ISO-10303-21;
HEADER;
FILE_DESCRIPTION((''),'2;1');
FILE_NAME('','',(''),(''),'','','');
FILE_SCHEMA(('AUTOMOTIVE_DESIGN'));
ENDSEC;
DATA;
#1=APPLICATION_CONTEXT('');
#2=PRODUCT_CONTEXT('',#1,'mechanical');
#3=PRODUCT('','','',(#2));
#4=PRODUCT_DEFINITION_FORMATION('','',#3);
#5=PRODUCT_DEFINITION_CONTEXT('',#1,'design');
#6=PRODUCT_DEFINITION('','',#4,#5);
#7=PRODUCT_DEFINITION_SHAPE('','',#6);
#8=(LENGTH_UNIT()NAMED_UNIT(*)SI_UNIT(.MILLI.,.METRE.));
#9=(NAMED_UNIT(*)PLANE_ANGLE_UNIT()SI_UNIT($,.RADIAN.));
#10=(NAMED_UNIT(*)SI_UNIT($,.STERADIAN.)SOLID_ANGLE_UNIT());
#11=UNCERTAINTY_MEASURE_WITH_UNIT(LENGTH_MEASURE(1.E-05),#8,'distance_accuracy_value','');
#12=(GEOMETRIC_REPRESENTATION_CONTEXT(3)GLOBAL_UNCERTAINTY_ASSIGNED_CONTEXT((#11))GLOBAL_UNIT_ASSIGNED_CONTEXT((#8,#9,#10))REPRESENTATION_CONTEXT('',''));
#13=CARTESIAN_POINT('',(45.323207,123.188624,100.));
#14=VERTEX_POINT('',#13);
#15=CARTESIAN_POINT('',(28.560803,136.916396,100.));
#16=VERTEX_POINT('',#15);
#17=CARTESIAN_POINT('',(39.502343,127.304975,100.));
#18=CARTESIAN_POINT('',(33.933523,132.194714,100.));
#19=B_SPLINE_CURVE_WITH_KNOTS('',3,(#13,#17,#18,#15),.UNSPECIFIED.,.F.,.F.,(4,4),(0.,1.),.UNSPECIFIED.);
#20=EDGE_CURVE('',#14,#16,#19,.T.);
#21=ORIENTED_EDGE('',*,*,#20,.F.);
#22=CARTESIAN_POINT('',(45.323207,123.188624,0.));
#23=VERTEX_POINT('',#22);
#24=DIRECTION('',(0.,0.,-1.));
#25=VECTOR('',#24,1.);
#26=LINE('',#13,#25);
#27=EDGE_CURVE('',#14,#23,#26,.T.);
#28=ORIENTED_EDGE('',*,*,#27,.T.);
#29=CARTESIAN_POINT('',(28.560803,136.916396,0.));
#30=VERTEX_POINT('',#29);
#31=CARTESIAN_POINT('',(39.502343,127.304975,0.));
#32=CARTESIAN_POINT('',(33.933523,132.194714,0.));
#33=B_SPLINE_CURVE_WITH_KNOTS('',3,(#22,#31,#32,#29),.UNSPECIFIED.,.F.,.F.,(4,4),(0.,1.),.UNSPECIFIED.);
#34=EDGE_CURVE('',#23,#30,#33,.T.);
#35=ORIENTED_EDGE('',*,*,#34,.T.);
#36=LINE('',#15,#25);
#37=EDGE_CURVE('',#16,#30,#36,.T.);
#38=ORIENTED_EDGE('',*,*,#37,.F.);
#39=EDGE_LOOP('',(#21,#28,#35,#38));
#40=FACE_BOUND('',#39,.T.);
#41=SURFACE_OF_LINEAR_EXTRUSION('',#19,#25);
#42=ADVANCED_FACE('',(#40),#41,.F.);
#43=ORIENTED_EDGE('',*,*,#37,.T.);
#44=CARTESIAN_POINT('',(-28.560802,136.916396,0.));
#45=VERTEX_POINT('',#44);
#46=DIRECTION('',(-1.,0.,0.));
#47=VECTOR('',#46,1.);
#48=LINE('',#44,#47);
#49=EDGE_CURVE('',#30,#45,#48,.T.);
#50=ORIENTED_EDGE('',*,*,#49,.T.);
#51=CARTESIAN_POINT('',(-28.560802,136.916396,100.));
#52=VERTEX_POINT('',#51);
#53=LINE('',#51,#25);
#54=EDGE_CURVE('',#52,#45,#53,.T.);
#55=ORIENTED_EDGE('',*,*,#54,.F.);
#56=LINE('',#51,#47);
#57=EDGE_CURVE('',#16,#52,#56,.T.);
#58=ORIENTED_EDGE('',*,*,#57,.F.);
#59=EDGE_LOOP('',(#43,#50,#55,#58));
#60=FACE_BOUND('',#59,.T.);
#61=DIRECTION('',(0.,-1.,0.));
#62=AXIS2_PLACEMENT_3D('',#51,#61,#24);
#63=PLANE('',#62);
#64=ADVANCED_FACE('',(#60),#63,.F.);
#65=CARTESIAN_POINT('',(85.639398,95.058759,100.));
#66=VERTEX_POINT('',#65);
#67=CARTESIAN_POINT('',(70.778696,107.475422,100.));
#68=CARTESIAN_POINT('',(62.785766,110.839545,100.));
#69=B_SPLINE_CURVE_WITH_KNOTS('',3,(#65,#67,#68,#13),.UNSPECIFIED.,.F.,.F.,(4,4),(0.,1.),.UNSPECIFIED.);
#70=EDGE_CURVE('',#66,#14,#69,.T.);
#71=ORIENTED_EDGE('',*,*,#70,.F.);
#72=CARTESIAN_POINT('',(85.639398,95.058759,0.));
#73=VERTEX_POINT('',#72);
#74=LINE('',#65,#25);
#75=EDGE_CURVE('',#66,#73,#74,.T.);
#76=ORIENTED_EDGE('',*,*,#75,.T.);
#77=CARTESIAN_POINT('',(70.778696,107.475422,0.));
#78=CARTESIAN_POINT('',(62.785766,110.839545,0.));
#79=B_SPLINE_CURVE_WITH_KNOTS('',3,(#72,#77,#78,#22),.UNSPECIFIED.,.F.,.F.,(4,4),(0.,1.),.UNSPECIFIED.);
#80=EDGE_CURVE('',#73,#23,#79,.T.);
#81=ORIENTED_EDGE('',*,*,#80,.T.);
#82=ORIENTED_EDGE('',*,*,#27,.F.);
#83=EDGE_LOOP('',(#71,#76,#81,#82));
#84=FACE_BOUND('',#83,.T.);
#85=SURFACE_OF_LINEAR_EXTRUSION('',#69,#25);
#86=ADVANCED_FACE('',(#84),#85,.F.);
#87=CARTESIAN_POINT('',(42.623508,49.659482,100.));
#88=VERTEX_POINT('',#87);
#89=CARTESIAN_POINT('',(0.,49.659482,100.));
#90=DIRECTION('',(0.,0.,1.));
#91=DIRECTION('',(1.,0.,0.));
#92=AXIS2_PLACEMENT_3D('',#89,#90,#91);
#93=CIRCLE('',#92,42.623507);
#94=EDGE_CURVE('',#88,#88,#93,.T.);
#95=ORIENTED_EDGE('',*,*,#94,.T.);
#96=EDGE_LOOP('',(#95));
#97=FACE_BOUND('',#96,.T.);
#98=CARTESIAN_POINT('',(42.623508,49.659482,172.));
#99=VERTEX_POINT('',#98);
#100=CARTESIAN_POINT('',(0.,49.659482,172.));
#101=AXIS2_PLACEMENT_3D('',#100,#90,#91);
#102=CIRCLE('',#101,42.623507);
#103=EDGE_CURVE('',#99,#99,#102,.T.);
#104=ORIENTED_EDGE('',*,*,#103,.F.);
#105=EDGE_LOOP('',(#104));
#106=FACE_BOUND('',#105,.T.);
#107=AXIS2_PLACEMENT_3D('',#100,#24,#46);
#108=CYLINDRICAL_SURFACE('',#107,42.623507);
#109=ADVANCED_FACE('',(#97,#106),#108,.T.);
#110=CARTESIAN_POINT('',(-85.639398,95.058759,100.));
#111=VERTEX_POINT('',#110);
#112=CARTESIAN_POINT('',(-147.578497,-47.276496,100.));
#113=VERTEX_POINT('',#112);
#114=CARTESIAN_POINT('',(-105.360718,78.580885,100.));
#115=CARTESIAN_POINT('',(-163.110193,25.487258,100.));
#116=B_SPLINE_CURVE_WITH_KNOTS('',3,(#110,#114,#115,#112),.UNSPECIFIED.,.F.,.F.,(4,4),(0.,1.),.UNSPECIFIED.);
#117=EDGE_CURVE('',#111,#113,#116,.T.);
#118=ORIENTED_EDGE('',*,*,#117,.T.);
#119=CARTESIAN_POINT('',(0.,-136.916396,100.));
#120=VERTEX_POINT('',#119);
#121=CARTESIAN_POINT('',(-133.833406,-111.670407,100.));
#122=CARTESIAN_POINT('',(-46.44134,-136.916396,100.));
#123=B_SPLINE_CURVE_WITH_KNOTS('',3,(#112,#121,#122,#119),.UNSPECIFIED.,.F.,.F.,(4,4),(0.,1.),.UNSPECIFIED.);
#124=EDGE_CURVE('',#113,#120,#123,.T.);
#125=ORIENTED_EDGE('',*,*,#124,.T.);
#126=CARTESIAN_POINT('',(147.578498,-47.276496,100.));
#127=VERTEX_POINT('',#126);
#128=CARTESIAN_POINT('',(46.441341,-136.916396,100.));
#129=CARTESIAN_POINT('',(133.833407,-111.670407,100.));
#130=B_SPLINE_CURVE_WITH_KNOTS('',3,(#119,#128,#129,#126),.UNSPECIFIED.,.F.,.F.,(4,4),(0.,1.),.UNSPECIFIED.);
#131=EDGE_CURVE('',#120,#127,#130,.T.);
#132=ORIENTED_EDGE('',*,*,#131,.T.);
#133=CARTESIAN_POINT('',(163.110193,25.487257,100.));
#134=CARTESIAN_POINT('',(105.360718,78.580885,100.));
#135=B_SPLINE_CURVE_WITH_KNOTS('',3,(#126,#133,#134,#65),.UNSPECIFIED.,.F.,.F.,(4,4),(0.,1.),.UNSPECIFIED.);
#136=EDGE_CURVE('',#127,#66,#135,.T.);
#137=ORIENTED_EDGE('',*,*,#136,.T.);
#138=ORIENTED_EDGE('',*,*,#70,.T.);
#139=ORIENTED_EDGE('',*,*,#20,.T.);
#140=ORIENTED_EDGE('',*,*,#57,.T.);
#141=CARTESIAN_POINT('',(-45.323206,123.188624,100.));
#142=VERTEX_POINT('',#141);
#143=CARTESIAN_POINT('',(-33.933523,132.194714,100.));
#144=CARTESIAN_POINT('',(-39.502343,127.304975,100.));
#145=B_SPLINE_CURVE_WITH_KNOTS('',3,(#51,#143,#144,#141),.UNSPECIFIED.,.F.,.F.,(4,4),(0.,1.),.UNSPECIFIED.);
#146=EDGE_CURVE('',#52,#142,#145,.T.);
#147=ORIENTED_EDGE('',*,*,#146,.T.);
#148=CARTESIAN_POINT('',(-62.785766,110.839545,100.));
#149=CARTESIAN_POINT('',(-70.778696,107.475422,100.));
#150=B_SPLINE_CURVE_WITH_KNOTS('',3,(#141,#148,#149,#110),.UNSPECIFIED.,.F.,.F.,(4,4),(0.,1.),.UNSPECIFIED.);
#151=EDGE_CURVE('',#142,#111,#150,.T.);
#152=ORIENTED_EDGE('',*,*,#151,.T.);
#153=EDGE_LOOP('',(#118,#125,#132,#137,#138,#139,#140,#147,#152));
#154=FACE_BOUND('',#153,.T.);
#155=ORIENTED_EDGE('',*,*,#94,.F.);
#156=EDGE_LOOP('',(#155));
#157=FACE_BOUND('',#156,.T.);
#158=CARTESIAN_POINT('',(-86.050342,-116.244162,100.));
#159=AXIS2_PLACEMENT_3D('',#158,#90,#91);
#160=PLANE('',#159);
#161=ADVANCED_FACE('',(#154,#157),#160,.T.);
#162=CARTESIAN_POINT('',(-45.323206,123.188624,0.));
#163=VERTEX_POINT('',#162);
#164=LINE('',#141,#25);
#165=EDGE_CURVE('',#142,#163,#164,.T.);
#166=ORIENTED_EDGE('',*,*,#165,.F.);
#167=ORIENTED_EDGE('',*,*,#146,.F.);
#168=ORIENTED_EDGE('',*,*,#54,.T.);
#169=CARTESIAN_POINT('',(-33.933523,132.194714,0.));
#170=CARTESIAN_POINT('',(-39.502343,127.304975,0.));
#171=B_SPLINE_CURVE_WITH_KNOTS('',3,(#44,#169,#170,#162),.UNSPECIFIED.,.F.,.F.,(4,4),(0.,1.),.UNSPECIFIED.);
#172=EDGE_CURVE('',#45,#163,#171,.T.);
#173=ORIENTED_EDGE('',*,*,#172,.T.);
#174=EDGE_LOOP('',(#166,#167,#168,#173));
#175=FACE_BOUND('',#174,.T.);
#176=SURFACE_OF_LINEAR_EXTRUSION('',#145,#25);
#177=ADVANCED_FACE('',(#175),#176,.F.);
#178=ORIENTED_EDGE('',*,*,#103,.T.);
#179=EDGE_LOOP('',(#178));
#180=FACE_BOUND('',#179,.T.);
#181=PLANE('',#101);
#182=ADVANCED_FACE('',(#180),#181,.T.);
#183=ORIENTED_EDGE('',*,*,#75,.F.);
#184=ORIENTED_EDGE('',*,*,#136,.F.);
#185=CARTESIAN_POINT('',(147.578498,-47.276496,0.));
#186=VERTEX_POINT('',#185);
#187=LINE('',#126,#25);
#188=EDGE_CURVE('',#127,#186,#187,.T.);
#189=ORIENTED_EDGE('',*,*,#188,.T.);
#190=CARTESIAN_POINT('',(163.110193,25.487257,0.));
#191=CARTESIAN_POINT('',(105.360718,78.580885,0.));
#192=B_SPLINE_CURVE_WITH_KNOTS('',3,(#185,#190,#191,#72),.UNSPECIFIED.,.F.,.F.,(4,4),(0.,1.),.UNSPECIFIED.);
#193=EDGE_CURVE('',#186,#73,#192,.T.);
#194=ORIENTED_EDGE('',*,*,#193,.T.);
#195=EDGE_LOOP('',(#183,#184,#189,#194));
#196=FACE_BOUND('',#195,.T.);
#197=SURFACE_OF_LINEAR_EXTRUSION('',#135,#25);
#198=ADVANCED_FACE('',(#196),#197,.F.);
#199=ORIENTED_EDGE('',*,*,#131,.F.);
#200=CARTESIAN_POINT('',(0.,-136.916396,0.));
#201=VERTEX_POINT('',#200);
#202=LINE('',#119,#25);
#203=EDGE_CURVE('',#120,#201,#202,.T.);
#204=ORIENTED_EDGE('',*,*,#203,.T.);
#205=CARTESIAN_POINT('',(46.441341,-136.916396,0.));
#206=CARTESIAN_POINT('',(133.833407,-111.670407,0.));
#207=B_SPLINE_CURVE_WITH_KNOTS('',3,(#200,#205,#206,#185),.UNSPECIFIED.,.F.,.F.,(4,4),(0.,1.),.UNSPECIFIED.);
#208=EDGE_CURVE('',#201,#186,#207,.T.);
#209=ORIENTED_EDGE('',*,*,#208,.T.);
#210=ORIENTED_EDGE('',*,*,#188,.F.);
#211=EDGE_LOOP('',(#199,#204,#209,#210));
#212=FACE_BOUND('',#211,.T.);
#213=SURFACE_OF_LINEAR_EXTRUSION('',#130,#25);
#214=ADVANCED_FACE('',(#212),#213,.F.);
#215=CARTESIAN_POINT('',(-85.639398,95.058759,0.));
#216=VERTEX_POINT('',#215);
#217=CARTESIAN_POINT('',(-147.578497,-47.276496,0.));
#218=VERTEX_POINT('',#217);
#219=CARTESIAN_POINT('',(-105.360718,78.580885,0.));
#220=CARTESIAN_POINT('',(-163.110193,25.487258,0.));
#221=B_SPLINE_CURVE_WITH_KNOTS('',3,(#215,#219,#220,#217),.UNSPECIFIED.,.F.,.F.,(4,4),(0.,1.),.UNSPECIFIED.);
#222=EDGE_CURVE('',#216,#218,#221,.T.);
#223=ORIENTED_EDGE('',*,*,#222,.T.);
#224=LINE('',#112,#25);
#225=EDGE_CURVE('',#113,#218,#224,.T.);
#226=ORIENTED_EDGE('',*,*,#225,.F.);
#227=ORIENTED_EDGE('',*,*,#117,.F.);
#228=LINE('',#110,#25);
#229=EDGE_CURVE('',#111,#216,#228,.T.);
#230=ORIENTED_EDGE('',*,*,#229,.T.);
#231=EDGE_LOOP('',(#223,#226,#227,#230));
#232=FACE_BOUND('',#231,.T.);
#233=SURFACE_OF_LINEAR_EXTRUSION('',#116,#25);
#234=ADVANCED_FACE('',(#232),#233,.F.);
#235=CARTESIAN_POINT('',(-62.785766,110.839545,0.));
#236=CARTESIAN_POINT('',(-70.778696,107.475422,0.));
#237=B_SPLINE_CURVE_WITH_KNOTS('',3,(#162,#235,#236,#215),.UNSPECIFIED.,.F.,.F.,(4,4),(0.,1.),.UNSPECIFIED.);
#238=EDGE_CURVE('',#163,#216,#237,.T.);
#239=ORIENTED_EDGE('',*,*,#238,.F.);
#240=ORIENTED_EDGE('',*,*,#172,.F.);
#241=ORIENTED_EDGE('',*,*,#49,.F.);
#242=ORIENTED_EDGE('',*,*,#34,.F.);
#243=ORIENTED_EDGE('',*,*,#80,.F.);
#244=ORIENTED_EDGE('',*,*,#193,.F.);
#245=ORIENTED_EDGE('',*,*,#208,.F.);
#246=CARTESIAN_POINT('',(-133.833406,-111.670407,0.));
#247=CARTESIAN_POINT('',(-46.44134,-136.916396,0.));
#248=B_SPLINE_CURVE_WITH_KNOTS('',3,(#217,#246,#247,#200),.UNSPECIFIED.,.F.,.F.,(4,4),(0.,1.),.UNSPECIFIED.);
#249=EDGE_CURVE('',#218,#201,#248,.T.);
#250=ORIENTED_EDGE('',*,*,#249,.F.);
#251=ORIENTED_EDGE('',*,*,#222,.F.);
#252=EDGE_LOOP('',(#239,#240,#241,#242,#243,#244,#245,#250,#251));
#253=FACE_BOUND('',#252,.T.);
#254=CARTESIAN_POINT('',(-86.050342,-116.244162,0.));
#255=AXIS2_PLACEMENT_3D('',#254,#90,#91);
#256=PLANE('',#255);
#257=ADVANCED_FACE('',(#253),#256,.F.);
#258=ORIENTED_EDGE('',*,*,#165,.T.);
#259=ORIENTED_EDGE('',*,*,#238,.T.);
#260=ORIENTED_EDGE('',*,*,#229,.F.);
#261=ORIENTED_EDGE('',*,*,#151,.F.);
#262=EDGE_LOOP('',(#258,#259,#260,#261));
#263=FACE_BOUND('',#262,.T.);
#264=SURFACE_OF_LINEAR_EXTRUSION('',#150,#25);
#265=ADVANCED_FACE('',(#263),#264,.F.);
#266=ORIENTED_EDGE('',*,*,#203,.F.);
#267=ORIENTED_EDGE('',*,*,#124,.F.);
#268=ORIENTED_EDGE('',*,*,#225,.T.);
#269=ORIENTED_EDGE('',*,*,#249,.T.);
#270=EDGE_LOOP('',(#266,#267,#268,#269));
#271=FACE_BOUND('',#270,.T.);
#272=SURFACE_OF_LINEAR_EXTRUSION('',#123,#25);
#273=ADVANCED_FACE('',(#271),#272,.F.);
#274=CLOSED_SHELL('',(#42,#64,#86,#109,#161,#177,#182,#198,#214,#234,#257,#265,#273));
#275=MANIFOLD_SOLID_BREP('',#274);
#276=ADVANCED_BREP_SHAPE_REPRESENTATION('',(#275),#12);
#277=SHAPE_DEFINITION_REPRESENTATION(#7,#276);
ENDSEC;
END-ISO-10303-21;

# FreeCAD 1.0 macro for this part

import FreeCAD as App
import Part
import Sketcher

doc = App.newDocument("Part")
body = doc.addObject("PartDesign::Body", "Body")

# Sketch on XY plane
sketch1 = body.newObject("Sketcher::SketchObject", "Sketch")
sketch1.AttachmentSupport = (doc.getObject("XY_Plane"), [""])
sketch1.MapMode = "FlatFace"
sketch1.addGeometry([
    Part.LineSegment(App.Vector(0, 136.916396, 0), App.Vector(-28.560802, 136.916396, 0)),  # 0
    Part.BSplineCurve([App.Vector(-45.323206, 123.188624, 0), App.Vector(-39.502343, 127.304975, 0), App.Vector(-33.933523, 132.194714, 0), App.Vector(-28.560802, 136.916396, 0)], [4, 4], [0, 1], False, 3, [1, 1, 1, 1], False),  # 1
    Part.BSplineCurve([App.Vector(-85.639398, 95.058759, 0), App.Vector(-70.778696, 107.475422, 0), App.Vector(-62.785766, 110.839545, 0), App.Vector(-45.323206, 123.188624, 0)], [4, 4], [0, 1], False, 3, [1, 1, 1, 1], False),  # 2
    Part.BSplineCurve([App.Vector(-147.578497, -47.276496, 0), App.Vector(-163.110193, 25.487258, 0), App.Vector(-105.360718, 78.580885, 0), App.Vector(-85.639398, 95.058759, 0)], [4, 4], [0, 1], False, 3, [1, 1, 1, 1], False),  # 3
    Part.BSplineCurve([App.Vector(0, -136.916396, 0), App.Vector(-46.44134, -136.916396, 0), App.Vector(-133.833406, -111.670407, 0), App.Vector(-147.578497, -47.276496, 0)], [4, 4], [0, 1], False, 3, [1, 1, 1, 1], False),  # 4
    Part.LineSegment(App.Vector(0, -136.916396, 0), App.Vector(0, 136.916396, 0)),  # 5
], False)
sketch1.addConstraint([
    Sketcher.Constraint("Block", 1),
    Sketcher.Constraint("Block", 2),
    Sketcher.Constraint("Block", 3),
    Sketcher.Constraint("Block", 4),
    Sketcher.Constraint("Coincident", 0, 2, 1, 2),
    Sketcher.Constraint("Coincident", 4, 1, 5, 1),
    Sketcher.Constraint("Coincident", 5, 2, 0, 1),
    Sketcher.Constraint("Horizontal", 0),
    Sketcher.Constraint("Vertical", 5),
])
pad1 = body.newObject("PartDesign::Pad", "Pad")
pad1.Profile = sketch1
pad1.Length = 100

# Sketch on XY plane
sketch2 = body.newObject("Sketcher::SketchObject", "Sketch001")
sketch2.AttachmentSupport = (doc.getObject("XY_Plane"), [""])
sketch2.MapMode = "FlatFace"
sketch2.addGeometry([
    Part.LineSegment(App.Vector(0, 136.916396, 0), App.Vector(0, -136.916396, 0)),  # 0
    Part.BSplineCurve([App.Vector(0, -136.916396, 0), App.Vector(46.441341, -136.916396, 0), App.Vector(133.833407, -111.670407, 0), App.Vector(147.578498, -47.276496, 0)], [4, 4], [0, 1], False, 3, [1, 1, 1, 1], False),  # 1
    Part.BSplineCurve([App.Vector(147.578498, -47.276496, 0), App.Vector(163.110193, 25.487257, 0), App.Vector(105.360718, 78.580885, 0), App.Vector(85.639398, 95.058759, 0)], [4, 4], [0, 1], False, 3, [1, 1, 1, 1], False),  # 2
    Part.BSplineCurve([App.Vector(85.639398, 95.058759, 0), App.Vector(70.778696, 107.475422, 0), App.Vector(62.785766, 110.839545, 0), App.Vector(45.323207, 123.188624, 0)], [4, 4], [0, 1], False, 3, [1, 1, 1, 1], False),  # 3
    Part.BSplineCurve([App.Vector(45.323207, 123.188624, 0), App.Vector(39.502343, 127.304975, 0), App.Vector(33.933523, 132.194714, 0), App.Vector(28.560803, 136.916396, 0)], [4, 4], [0, 1], False, 3, [1, 1, 1, 1], False),  # 4
    Part.LineSegment(App.Vector(28.560803, 136.916396, 0), App.Vector(0, 136.916396, 0)),  # 5
], False)
sketch2.addConstraint([
    Sketcher.Constraint("Block", 1),
    Sketcher.Constraint("Block", 2),
    Sketcher.Constraint("Block", 3),
    Sketcher.Constraint("Block", 4),
    Sketcher.Constraint("Coincident", 0, 2, 1, 1),
    Sketcher.Constraint("Coincident", 4, 2, 5, 1),
    Sketcher.Constraint("Coincident", 5, 2, 0, 1),
    Sketcher.Constraint("Vertical", 0),
    Sketcher.Constraint("Horizontal", 5),
])
pad2 = body.newObject("PartDesign::Pad", "Pad001")
pad2.Profile = sketch2
pad2.Length = 100

# Sketch on XY plane
sketch3 = body.newObject("Sketcher::SketchObject", "Sketch002")
sketch3.AttachmentSupport = (doc.getObject("XY_Plane"), [""])
sketch3.MapMode = "FlatFace"
sketch3.AttachmentOffset = App.Placement(App.Vector(0, 0, 100), App.Rotation())
sketch3.addGeometry(Part.Circle(App.Vector(0, 49.659482, 0), App.Vector(0, 0, 1), 42.623507), False)
sketch3.addConstraint([
    Sketcher.Constraint("PointOnObject", 0, 3, -2),
    Sketcher.Constraint("Diameter", 0, 85.247015),
    Sketcher.Constraint("DistanceY", -1, 1, 0, 3, 49.659482),
])
pad3 = body.newObject("PartDesign::Pad", "Pad002")
pad3.Profile = sketch3
pad3.Length = 72

doc.recompute()
